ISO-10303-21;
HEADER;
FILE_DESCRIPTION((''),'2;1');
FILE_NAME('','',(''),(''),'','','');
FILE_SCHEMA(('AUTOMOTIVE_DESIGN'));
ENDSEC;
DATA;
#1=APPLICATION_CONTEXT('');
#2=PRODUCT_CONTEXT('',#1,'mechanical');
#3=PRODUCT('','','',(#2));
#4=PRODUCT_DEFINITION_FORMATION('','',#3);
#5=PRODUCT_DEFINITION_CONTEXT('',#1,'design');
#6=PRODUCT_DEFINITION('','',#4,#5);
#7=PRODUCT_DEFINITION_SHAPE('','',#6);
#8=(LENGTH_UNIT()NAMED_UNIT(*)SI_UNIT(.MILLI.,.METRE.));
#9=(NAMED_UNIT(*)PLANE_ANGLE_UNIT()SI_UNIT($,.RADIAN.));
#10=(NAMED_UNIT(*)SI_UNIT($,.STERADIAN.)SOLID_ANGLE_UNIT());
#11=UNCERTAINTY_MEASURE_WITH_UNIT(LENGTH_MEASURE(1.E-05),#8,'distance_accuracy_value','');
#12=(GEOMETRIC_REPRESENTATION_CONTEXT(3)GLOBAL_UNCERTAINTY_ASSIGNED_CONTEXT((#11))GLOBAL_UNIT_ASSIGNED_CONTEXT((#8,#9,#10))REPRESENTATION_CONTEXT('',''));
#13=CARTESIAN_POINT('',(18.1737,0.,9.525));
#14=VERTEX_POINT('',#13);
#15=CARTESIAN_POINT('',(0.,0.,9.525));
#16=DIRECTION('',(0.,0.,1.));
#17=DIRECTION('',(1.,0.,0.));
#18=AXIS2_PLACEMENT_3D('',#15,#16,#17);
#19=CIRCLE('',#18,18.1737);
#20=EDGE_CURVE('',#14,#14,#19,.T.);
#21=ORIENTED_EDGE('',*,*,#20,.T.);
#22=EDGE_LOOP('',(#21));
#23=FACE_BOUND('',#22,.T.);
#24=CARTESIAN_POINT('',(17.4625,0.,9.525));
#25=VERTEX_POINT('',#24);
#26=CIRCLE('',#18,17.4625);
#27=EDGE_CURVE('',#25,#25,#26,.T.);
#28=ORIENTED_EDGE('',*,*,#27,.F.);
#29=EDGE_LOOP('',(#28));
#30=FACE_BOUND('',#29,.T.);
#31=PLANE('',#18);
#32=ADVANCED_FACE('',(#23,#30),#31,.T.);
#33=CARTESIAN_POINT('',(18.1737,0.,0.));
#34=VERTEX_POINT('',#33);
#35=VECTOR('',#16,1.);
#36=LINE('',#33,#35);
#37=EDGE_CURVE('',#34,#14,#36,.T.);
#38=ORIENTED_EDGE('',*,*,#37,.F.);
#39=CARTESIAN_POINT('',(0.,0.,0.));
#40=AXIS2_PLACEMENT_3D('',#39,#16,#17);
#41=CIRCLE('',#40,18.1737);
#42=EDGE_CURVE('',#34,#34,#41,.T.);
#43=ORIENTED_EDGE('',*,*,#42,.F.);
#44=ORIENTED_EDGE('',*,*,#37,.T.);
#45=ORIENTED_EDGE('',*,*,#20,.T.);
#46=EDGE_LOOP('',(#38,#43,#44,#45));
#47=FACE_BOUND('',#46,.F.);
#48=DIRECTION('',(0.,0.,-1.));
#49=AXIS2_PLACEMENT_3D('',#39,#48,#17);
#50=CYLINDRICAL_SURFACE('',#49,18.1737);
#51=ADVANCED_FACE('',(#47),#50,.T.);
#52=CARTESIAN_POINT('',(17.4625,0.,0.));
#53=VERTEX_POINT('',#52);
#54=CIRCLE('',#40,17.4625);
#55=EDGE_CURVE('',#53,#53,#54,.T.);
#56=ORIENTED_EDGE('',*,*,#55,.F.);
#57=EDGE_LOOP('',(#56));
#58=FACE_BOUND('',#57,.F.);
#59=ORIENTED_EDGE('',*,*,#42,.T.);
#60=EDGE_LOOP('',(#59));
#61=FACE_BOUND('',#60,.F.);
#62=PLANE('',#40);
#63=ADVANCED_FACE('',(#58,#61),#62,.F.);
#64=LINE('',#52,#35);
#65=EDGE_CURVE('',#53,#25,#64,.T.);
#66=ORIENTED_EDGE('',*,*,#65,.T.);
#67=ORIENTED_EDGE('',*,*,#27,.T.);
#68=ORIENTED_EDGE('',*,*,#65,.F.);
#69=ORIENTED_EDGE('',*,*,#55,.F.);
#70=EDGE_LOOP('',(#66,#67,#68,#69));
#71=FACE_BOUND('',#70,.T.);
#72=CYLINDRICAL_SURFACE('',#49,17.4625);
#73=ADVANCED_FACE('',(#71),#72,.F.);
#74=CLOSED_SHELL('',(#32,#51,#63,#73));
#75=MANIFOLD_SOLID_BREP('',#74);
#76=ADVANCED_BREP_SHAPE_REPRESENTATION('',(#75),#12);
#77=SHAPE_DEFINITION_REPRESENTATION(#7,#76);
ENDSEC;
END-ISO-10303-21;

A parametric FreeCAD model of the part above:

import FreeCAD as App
import Part
import Sketcher
Q = App.Units.Quantity

doc = App.newDocument("Part")
params = doc.addObject("Spreadsheet::Sheet", "Params")
for row, (alias, value) in enumerate([
    ("sketch1_diameter", "1.431 in"),
    ("sketch1_diameter2", "1.375 in"),
    ("pad1_length", "0.375 in"),
], start=1):
    params.set(f"A{row}", alias)
    params.set(f"B{row}", "=" + value)
    params.setAlias(f"B{row}", alias)

body = doc.addObject("PartDesign::Body", "Body")

sketch1 = body.newObject("Sketcher::SketchObject", "Sketch")
sketch1.AttachmentSupport = (doc.getObject("XY_Plane"), [""])
sketch1.MapMode = "FlatFace"
sketch1.addGeometry(Part.Circle(App.Vector(0, 0, 0), App.Vector(0, 0, 1), 18.1737), False)
sketch1.addGeometry(Part.Circle(App.Vector(0, 0, 0), App.Vector(0, 0, 1), 17.4625), False)
sketch1.addConstraint(Sketcher.Constraint("Coincident", 0, 3, -1, 1))
sketch1.addConstraint(Sketcher.Constraint("Coincident", 1, 3, -1, 1))
sketch1.addConstraint(Sketcher.Constraint("Diameter", 0, Q("1.431 in")))
sketch1.addConstraint(Sketcher.Constraint("Diameter", 1, Q("1.375 in")))
sketch1.setExpression("Constraints[2]", "Params.sketch1_diameter")
sketch1.setExpression("Constraints[3]", "Params.sketch1_diameter2")
pad1 = body.newObject("PartDesign::Pad", "Pad")
pad1.Profile = sketch1
pad1.setExpression("Length", "Params.pad1_length")

doc.recompute()
